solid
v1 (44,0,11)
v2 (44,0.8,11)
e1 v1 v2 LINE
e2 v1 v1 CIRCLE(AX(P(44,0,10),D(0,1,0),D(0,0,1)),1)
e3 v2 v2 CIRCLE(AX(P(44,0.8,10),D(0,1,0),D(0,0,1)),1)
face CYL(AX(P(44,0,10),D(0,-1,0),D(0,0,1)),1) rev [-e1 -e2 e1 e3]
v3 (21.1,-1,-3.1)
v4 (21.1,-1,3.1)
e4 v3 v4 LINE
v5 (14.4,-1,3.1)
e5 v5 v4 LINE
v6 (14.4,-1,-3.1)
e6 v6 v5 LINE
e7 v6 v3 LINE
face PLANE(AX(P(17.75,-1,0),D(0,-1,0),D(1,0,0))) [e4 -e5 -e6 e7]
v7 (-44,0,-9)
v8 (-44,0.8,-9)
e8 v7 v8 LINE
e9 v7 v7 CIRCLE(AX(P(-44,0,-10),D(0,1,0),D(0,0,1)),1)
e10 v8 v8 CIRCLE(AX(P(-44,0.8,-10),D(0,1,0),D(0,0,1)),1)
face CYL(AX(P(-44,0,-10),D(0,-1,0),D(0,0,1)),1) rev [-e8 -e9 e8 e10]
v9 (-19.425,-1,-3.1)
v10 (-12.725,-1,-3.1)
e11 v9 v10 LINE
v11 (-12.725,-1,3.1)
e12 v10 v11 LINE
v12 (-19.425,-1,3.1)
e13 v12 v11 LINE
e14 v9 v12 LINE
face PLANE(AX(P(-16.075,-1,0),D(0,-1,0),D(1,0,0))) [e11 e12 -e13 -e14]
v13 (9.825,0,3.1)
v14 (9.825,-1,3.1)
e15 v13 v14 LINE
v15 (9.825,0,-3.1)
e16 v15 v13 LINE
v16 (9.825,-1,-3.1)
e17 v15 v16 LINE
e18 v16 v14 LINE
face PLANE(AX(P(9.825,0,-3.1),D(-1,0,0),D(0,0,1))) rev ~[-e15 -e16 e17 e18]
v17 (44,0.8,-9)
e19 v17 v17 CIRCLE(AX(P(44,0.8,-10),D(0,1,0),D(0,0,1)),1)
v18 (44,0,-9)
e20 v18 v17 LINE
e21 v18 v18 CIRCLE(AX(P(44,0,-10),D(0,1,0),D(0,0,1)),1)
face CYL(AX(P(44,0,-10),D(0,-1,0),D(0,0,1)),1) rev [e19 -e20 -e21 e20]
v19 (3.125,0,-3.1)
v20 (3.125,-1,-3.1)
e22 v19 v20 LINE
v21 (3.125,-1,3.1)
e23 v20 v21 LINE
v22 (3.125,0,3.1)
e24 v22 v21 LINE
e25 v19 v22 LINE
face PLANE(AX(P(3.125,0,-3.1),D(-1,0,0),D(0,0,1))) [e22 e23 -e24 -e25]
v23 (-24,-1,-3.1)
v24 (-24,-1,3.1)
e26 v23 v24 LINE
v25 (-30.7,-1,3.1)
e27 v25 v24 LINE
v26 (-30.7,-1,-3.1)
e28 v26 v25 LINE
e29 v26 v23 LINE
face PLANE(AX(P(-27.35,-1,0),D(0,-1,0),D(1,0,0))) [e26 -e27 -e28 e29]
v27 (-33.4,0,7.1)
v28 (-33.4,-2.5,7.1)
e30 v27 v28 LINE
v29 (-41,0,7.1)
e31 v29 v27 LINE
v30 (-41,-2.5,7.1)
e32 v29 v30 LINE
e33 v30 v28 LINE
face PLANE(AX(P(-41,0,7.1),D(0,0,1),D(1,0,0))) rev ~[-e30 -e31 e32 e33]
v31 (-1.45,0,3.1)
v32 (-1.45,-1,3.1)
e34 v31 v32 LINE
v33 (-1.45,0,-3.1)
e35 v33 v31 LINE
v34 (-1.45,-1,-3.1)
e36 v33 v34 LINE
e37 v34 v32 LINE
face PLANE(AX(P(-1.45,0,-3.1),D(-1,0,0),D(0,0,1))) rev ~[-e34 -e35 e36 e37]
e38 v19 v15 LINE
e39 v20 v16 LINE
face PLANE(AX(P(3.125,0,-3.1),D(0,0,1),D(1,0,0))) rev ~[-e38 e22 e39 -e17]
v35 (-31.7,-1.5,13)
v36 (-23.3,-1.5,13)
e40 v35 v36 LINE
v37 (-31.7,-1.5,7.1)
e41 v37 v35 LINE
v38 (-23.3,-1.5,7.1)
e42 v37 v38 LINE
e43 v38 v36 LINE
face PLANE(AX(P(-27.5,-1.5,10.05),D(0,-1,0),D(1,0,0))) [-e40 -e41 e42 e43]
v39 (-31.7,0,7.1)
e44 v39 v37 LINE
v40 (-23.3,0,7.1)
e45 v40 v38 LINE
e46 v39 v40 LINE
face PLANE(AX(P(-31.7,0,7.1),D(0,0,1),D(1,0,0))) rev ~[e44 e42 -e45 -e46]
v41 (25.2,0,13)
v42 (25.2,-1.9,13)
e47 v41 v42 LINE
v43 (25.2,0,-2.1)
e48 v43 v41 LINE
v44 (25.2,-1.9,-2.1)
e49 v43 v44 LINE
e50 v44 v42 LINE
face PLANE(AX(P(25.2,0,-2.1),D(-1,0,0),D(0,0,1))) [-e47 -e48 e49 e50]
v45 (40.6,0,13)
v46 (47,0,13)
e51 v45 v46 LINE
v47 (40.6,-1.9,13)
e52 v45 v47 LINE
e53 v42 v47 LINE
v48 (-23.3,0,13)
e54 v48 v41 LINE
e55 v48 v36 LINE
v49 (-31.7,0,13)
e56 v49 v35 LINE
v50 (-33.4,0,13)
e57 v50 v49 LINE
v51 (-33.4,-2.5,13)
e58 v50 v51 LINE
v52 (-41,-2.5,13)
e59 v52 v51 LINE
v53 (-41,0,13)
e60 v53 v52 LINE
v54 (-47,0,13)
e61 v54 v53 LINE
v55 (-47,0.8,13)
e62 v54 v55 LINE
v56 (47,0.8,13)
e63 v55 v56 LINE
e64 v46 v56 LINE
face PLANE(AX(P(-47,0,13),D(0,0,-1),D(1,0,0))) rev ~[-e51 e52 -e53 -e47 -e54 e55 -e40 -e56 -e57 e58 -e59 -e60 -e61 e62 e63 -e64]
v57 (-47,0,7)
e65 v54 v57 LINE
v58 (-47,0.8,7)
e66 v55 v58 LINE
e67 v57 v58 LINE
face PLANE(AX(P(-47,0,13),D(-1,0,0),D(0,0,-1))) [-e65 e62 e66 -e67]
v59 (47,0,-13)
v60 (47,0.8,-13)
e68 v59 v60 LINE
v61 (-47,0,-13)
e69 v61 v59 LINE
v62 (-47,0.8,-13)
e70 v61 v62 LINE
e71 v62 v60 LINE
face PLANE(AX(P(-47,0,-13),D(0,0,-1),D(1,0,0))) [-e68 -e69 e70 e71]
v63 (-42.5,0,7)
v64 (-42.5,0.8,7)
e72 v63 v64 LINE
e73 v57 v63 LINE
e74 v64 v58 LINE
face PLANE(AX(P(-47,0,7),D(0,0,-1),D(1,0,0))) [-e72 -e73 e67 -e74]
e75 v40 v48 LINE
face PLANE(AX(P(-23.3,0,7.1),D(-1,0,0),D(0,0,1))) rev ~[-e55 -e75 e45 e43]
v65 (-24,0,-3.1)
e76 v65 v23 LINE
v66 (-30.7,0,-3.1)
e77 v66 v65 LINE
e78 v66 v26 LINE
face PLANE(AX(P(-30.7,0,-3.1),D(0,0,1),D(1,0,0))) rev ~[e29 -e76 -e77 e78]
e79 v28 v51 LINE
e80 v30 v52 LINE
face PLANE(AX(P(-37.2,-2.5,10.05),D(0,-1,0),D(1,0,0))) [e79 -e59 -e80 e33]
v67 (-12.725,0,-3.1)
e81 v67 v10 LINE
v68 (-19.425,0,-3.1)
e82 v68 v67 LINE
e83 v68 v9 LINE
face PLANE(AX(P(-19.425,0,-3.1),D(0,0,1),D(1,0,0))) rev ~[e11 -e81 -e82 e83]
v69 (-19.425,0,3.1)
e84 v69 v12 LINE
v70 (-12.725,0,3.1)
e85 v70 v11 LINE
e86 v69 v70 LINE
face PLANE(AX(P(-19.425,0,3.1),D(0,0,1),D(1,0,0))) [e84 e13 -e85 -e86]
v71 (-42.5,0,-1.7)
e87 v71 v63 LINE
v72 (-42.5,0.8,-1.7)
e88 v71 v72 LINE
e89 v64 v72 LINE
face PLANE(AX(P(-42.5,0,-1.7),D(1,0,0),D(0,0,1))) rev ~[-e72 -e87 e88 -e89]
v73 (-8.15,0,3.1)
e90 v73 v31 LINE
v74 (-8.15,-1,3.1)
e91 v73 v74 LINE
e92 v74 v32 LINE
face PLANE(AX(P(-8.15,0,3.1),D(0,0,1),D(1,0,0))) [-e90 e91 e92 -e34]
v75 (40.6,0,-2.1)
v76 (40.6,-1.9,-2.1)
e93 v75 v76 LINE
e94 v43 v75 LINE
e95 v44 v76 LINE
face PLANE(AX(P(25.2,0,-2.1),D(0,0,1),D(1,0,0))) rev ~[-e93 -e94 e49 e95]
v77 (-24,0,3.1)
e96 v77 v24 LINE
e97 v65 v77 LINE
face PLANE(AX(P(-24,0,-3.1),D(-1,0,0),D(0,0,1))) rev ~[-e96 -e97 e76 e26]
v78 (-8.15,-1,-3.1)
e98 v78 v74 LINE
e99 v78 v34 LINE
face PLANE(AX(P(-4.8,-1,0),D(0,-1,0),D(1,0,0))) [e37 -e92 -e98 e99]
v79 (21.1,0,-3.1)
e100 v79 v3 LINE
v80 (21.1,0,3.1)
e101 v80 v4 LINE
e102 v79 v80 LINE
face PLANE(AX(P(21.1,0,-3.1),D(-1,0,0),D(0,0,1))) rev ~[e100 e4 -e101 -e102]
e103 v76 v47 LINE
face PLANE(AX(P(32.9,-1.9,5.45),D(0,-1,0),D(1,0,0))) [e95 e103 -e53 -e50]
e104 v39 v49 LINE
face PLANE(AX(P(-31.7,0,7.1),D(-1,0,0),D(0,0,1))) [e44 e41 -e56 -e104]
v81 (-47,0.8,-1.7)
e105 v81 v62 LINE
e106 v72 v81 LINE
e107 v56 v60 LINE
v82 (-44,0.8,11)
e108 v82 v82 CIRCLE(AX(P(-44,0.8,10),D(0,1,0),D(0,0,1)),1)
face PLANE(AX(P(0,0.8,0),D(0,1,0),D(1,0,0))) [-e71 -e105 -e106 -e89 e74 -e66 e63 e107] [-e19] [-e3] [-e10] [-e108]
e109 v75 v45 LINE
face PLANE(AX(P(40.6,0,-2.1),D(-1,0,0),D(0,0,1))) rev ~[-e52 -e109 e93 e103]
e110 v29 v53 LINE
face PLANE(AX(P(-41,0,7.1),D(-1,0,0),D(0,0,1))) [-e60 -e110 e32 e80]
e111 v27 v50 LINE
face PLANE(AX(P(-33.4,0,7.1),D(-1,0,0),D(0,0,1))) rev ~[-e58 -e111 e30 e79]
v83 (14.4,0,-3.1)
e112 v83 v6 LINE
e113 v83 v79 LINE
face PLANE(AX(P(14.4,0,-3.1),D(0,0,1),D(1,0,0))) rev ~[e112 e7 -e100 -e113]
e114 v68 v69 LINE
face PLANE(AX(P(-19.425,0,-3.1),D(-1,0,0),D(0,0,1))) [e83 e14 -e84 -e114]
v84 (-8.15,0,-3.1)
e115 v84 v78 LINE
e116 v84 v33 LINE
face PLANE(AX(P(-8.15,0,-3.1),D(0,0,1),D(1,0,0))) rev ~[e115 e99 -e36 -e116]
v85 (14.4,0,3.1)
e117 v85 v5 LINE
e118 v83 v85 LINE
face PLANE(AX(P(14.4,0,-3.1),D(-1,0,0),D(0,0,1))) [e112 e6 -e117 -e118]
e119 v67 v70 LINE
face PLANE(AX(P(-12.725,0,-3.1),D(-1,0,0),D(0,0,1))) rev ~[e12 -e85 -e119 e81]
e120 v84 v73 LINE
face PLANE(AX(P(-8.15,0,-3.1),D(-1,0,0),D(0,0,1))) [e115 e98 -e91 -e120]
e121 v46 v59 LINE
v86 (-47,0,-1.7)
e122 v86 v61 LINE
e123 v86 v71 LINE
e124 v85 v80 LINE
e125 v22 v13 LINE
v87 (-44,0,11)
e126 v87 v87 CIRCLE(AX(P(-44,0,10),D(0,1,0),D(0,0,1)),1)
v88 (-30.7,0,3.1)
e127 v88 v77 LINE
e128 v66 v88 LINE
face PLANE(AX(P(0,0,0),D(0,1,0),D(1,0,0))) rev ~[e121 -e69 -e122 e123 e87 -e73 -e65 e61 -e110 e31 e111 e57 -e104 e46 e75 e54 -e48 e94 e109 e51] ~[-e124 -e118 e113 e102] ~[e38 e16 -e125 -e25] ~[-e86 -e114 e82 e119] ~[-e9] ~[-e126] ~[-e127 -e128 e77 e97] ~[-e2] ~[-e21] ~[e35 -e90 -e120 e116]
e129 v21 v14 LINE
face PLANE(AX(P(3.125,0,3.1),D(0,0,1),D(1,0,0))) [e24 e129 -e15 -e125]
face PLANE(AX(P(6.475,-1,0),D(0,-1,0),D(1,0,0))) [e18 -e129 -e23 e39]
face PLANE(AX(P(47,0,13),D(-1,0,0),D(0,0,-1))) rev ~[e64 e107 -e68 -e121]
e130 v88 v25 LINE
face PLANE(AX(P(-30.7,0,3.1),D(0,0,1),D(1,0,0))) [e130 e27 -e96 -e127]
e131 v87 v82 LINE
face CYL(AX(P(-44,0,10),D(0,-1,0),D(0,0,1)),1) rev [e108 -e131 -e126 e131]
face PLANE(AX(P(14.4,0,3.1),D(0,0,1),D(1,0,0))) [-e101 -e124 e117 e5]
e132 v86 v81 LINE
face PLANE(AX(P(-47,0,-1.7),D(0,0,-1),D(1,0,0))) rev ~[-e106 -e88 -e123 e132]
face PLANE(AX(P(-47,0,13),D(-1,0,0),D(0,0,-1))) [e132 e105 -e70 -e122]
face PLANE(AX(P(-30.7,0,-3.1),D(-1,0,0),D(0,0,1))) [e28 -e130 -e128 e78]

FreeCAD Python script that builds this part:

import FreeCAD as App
import Part
import Sketcher

V = App.Vector
Q = App.Units.Quantity


def add_polygon(sketch, points):
    """Adds a closed chain of lines whose ends are joined by coincident constraints."""
    first, n = sketch.GeometryCount, len(points)
    for a, b in zip(points, points[1:] + points[:1]):
        sketch.addGeometry(Part.LineSegment(App.Vector(*a, 0), App.Vector(*b, 0)), False)
    for i in range(n):
        sketch.addConstraint(Sketcher.Constraint("Coincident", first + i, 2, first + (i + 1) % n, 1))

doc = App.newDocument("Part")
body = doc.addObject("PartDesign::Body", "Body")

sketch1 = body.newObject("Sketcher::SketchObject", "Sketch")
sketch1.AttachmentSupport = (doc.getObject("XZ_Plane"), [""])
sketch1.MapMode = "FlatFace"
add_polygon(sketch1, [(-47, -13), (-47, 13), (47, 13), (47, -13)])
sketch1.addGeometry(Part.Circle(V(-44, 10, 0), V(0, 0, 1), 1), False)
sketch1.addGeometry(Part.Circle(V(44, 10, 0), V(0, 0, 1), 1), False)
sketch1.addGeometry(Part.Circle(V(-44, -10, 0), V(0, 0, 1), 1), False)
sketch1.addGeometry(Part.Circle(V(44, -10, 0), V(0, 0, 1), 1), False)
sketch1.addConstraint(Sketcher.Constraint("Vertical", 0))
sketch1.addConstraint(Sketcher.Constraint("Horizontal", 1))
sketch1.addConstraint(Sketcher.Constraint("Vertical", 2))
sketch1.addConstraint(Sketcher.Constraint("Horizontal", 3))
sketch1.addConstraint(Sketcher.Constraint("Equal", 4, 5))
sketch1.addConstraint(Sketcher.Constraint("Equal", 5, 6))
sketch1.addConstraint(Sketcher.Constraint("Equal", 6, 7))
sketch1.addConstraint(Sketcher.Constraint("Symmetric", 5, 3, 6, 3, -1, 1))
sketch1.addConstraint(Sketcher.Constraint("Symmetric", 4, 3, 7, 3, -1, 1))
sketch1.addConstraint(Sketcher.Constraint("Symmetric", 0, 2, 2, 2, -1, 1))
sketch1.addConstraint(Sketcher.Constraint("Symmetric", 4, 3, 5, 3, -2))
sketch1.addConstraint(Sketcher.Constraint("Diameter", 4, Q("2 mm")))
sketch1.addConstraint(Sketcher.Constraint("DistanceX", 1, 1, 1, 2, Q("94 mm")))
sketch1.addConstraint(Sketcher.Constraint("DistanceY", 0, 1, 0, 2, Q("26 mm")))
sketch1.addConstraint(Sketcher.Constraint("DistanceX", 4, 3, -1, 1, Q("44 mm")))
sketch1.addConstraint(Sketcher.Constraint("DistanceY", -1, 1, 4, 3, Q("10 mm")))
pad1 = body.newObject("PartDesign::Pad", "Pad")
pad1.Profile = sketch1
pad1.Length = 0.8
pad1.Reversed = True

sketch2 = body.newObject("Sketcher::SketchObject", "Sketch001")
sketch2.AttachmentSupport = (doc.getObject("XZ_Plane"), [""])
sketch2.MapMode = "FlatFace"
add_polygon(sketch2, [(25, 13), (25, -2), (41, -2), (41, 13)])
sketch2.addConstraint(Sketcher.Constraint("Vertical", 0))
sketch2.addConstraint(Sketcher.Constraint("Horizontal", 1))
sketch2.addConstraint(Sketcher.Constraint("Vertical", 2))
sketch2.addConstraint(Sketcher.Constraint("Horizontal", 3))
sketch2.addConstraint(Sketcher.Constraint("DistanceX", 1, 1, 1, 2, Q("15.4 mm")))
sketch2.addConstraint(Sketcher.Constraint("DistanceY", 0, 2, 0, 1, Q("15.1 mm")))
sketch2.addConstraint(Sketcher.Constraint("DistanceY", -1, 1, 2, 2, Q("13 mm")))
sketch2.addConstraint(Sketcher.Constraint("DistanceX", -1, 1, 0, 2, Q("25.2 mm")))
pad2 = body.newObject("PartDesign::Pad", "Pad001")
pad2.Profile = sketch2
pad2.Length = 1.9

sketch3 = body.newObject("Sketcher::SketchObject", "Sketch002")
sketch3.AttachmentSupport = (doc.getObject("XZ_Plane"), [""])
sketch3.MapMode = "FlatFace"
add_polygon(sketch3, [(-31, 3), (-31, -3), (-24, -3), (-24, 3)])
add_polygon(sketch3, [(-19, 3), (-19, -3), (-13, -3), (-13, 3)])
add_polygon(sketch3, [(-8, 3), (-8, -3), (-1, -3), (-1, 3)])
add_polygon(sketch3, [(3, 3), (3, -3), (10, -3), (10, 3)])
add_polygon(sketch3, [(14, 3), (14, -3), (21, -3), (21, 3)])
sketch3.addConstraint(Sketcher.Constraint("Vertical", 0))
sketch3.addConstraint(Sketcher.Constraint("Horizontal", 1))
sketch3.addConstraint(Sketcher.Constraint("Vertical", 2))
sketch3.addConstraint(Sketcher.Constraint("Horizontal", 3))
sketch3.addConstraint(Sketcher.Constraint("Vertical", 4))
sketch3.addConstraint(Sketcher.Constraint("Horizontal", 5))
sketch3.addConstraint(Sketcher.Constraint("Vertical", 6))
sketch3.addConstraint(Sketcher.Constraint("Horizontal", 7))
sketch3.addConstraint(Sketcher.Constraint("Vertical", 8))
sketch3.addConstraint(Sketcher.Constraint("Horizontal", 9))
sketch3.addConstraint(Sketcher.Constraint("Vertical", 10))
sketch3.addConstraint(Sketcher.Constraint("Horizontal", 11))
sketch3.addConstraint(Sketcher.Constraint("Vertical", 12))
sketch3.addConstraint(Sketcher.Constraint("Horizontal", 13))
sketch3.addConstraint(Sketcher.Constraint("Vertical", 14))
sketch3.addConstraint(Sketcher.Constraint("Horizontal", 15))
sketch3.addConstraint(Sketcher.Constraint("Vertical", 16))
sketch3.addConstraint(Sketcher.Constraint("Horizontal", 17))
sketch3.addConstraint(Sketcher.Constraint("Vertical", 18))
sketch3.addConstraint(Sketcher.Constraint("Horizontal", 19))
sketch3.addConstraint(Sketcher.Constraint("Horizontal", 1, 2, 4, 2))
sketch3.addConstraint(Sketcher.Constraint("Horizontal", 3, 2, 6, 2))
sketch3.addConstraint(Sketcher.Constraint("Horizontal", 5, 2, 8, 2))
sketch3.addConstraint(Sketcher.Constraint("Horizontal", 7, 2, 10, 2))
sketch3.addConstraint(Sketcher.Constraint("Horizontal", 9, 2, 12, 2))
sketch3.addConstraint(Sketcher.Constraint("Horizontal", 11, 2, 14, 2))
sketch3.addConstraint(Sketcher.Constraint("Horizontal", 13, 2, 16, 2))
sketch3.addConstraint(Sketcher.Constraint("Horizontal", 15, 2, 18, 2))
sketch3.addConstraint(Sketcher.Constraint("Equal", 3, 5))
sketch3.addConstraint(Sketcher.Constraint("Equal", 7, 9))
sketch3.addConstraint(Sketcher.Constraint("Equal", 11, 13))
sketch3.addConstraint(Sketcher.Constraint("Equal", 15, 17))
sketch3.addConstraint(Sketcher.Constraint("DistanceX", 1, 1, 1, 2, Q("6.7 mm")))
sketch3.addConstraint(Sketcher.Constraint("DistanceY", 0, 2, 0, 1, Q("6.2 mm")))
sketch3.addConstraint(Sketcher.Constraint("DistanceX", 1, 2, -1, 1, Q("24 mm")))
sketch3.addConstraint(Sketcher.Constraint("DistanceY", 0, 2, -1, 1, Q("3.1 mm")))
sketch3.addConstraint(Sketcher.Constraint("DistanceX", -1, 1, 16, 2, Q("14.4 mm")))
sketch3.addConstraint(Sketcher.Constraint("DistanceX", 8, 2, -1, 1, Q("8.15 mm")))
sketch3.addConstraint(Sketcher.Constraint("DistanceX", 5, 2, 12, 2, Q("15.85 mm")))
sketch3.addConstraint(Sketcher.Constraint("DistanceX", 4, 2, -1, 1, Q("19.425 mm")))
pad3 = body.newObject("PartDesign::Pad", "Pad002")
pad3.Profile = sketch3
pad3.Length = 1

sketch4 = body.newObject("Sketcher::SketchObject", "Sketch003")
sketch4.AttachmentSupport = (doc.getObject("XZ_Plane"), [""])
sketch4.MapMode = "FlatFace"
add_polygon(sketch4, [(-32, 13), (-32, 7), (-23, 7), (-23, 13)])
sketch4.addConstraint(Sketcher.Constraint("Vertical", 0))
sketch4.addConstraint(Sketcher.Constraint("Horizontal", 1))
sketch4.addConstraint(Sketcher.Constraint("Vertical", 2))
sketch4.addConstraint(Sketcher.Constraint("Horizontal", 3))
sketch4.addConstraint(Sketcher.Constraint("DistanceX", 1, 1, 1, 2, Q("8.4 mm")))
sketch4.addConstraint(Sketcher.Constraint("DistanceY", 0, 2, 0, 1, Q("5.9 mm")))
sketch4.addConstraint(Sketcher.Constraint("DistanceY", -1, 1, 2, 2, Q("13 mm")))
sketch4.addConstraint(Sketcher.Constraint("DistanceX", 0, 2, -1, 1, Q("31.7 mm")))
pad4 = body.newObject("PartDesign::Pad", "Pad003")
pad4.Profile = sketch4
pad4.Length = 1.5

sketch5 = body.newObject("Sketcher::SketchObject", "Sketch004")
sketch5.AttachmentSupport = (doc.getObject("XZ_Plane"), [""])
sketch5.MapMode = "FlatFace"
add_polygon(sketch5, [(-41, 13), (-41, 7), (-33, 7), (-33, 13)])
sketch5.addConstraint(Sketcher.Constraint("Vertical", 0))
sketch5.addConstraint(Sketcher.Constraint("Horizontal", 1))
sketch5.addConstraint(Sketcher.Constraint("Vertical", 2))
sketch5.addConstraint(Sketcher.Constraint("Horizontal", 3))
sketch5.addConstraint(Sketcher.Constraint("DistanceX", 1, 1, 1, 2, Q("7.6 mm")))
sketch5.addConstraint(Sketcher.Constraint("DistanceY", 0, 2, 0, 1, Q("5.9 mm")))
sketch5.addConstraint(Sketcher.Constraint("DistanceX", 0, 2, -1, 1, Q("41 mm")))
sketch5.addConstraint(Sketcher.Constraint("DistanceY", -1, 1, 2, 2, Q("13 mm")))
pad5 = body.newObject("PartDesign::Pad", "Pad004")
pad5.Profile = sketch5
pad5.Length = 2.5

sketch6 = body.newObject("Sketcher::SketchObject", "Sketch005")
sketch6.AttachmentSupport = (doc.getObject("XZ_Plane"), [""])
sketch6.MapMode = "FlatFace"
add_polygon(sketch6, [(-47, 7), (-47, -1.7), (-42.5, -1.7), (-42.5, 7)])
sketch6.addConstraint(Sketcher.Constraint("Vertical", 0))
sketch6.addConstraint(Sketcher.Constraint("Horizontal", 1))
sketch6.addConstraint(Sketcher.Constraint("Vertical", 2))
sketch6.addConstraint(Sketcher.Constraint("Horizontal", 3))
sketch6.addConstraint(Sketcher.Constraint("DistanceX", 1, 1, 1, 2, Q("4.5 mm")))
sketch6.addConstraint(Sketcher.Constraint("DistanceY", 0, 2, 0, 1, Q("8.7 mm")))
sketch6.addConstraint(Sketcher.Constraint("DistanceX", 0, 2, -1, 1, Q("47 mm")))
sketch6.addConstraint(Sketcher.Constraint("DistanceY", -1, 1, 2, 2, Q("7 mm")))
pocket1 = body.newObject("PartDesign::Pocket", "Pocket")
pocket1.Profile = sketch6
pocket1.Type = "ThroughAll"

doc.recompute()
